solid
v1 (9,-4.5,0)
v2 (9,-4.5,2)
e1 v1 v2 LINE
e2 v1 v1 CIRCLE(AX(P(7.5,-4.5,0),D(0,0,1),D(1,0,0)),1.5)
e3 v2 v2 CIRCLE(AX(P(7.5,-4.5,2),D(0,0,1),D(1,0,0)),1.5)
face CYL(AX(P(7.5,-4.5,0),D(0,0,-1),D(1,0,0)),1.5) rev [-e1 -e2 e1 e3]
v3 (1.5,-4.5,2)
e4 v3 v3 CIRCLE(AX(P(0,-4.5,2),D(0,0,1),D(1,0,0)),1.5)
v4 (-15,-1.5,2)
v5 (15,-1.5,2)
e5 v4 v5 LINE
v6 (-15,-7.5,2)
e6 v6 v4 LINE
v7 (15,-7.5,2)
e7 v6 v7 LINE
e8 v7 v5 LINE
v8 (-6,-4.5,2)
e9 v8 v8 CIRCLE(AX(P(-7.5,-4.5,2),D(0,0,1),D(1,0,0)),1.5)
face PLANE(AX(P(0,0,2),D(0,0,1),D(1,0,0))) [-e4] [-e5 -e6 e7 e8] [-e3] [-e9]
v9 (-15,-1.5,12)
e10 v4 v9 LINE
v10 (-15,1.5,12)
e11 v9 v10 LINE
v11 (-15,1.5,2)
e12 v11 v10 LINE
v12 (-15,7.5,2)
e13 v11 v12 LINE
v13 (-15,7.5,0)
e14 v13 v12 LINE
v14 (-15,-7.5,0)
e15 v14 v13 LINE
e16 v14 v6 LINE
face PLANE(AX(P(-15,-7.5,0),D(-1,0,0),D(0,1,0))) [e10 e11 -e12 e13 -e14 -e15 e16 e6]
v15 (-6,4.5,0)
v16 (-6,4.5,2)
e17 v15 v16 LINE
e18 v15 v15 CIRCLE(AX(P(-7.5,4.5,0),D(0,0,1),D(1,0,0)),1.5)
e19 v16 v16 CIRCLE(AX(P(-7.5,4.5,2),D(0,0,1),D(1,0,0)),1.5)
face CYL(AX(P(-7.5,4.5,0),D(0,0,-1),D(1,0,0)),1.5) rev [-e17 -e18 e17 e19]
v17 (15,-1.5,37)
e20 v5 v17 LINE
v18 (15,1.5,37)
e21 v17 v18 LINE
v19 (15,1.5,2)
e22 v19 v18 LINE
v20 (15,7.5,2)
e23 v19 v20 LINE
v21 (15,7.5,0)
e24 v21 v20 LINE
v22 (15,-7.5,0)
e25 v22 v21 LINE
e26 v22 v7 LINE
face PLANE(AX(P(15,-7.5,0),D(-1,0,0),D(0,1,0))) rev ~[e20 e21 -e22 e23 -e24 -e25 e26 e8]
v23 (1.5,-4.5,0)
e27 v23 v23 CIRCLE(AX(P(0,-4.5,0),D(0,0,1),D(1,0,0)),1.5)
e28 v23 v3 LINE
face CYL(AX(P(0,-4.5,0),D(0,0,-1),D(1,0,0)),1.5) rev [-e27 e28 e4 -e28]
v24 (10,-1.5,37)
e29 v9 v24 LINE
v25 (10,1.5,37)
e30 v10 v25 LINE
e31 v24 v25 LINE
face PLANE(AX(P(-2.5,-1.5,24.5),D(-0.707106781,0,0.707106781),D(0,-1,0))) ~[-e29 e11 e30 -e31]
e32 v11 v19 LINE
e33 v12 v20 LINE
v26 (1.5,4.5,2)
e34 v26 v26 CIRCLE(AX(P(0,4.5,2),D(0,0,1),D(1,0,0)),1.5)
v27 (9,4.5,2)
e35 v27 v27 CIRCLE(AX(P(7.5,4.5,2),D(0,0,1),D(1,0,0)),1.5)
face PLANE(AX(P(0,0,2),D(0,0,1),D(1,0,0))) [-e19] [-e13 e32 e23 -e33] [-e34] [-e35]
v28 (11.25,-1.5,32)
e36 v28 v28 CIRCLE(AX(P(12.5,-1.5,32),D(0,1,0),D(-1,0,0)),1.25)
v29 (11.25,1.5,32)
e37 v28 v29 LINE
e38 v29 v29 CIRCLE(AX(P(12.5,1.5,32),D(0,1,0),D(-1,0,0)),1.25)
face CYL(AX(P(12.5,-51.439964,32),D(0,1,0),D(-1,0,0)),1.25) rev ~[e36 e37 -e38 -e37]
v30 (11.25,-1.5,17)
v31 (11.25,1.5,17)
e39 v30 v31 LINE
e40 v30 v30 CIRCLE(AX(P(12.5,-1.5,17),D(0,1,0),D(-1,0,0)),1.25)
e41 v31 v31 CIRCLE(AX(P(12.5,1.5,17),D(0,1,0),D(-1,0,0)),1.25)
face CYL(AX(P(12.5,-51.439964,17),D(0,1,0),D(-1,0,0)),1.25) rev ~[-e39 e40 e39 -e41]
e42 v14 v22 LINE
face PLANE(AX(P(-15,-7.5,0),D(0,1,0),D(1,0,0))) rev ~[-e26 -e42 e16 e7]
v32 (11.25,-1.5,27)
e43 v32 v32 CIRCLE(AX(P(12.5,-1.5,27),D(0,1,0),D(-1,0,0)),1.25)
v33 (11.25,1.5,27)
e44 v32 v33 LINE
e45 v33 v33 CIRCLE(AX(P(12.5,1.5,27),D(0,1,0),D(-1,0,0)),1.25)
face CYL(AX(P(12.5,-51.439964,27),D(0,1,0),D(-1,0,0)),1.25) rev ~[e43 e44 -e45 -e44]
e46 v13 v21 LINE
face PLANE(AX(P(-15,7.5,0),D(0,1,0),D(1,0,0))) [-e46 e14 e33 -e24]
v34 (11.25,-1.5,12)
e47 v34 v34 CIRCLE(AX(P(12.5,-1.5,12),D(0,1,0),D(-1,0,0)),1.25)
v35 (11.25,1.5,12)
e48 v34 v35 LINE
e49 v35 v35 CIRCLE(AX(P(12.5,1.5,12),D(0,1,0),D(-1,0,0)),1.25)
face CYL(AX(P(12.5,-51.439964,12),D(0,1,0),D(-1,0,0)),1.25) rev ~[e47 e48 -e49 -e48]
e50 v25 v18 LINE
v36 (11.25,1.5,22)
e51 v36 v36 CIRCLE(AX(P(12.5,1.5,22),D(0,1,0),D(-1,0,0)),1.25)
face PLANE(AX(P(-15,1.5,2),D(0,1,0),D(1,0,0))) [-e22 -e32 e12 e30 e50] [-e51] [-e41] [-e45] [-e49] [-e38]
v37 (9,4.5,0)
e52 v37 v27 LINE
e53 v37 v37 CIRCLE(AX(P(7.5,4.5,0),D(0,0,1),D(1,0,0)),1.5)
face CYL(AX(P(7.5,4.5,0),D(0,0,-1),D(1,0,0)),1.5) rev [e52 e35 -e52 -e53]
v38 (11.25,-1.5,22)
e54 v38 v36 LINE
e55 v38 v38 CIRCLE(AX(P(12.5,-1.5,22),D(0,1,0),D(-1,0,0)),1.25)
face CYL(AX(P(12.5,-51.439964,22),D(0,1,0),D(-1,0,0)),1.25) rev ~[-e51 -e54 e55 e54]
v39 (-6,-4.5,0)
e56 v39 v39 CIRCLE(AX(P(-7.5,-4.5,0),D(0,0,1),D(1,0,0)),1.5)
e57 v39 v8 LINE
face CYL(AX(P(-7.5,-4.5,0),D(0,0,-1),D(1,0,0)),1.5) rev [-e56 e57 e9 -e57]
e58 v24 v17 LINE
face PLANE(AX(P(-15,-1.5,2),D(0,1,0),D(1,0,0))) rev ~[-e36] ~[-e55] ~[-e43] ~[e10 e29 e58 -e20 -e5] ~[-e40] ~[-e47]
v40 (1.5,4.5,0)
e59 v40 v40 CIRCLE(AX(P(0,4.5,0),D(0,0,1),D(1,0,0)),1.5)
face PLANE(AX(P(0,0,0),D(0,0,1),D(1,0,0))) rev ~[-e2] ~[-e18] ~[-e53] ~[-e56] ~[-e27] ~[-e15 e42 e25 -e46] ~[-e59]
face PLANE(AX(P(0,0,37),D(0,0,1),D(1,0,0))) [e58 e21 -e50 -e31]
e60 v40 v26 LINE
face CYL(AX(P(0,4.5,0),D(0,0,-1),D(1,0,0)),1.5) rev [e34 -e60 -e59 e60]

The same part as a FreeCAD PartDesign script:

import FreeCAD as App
import Part
import Sketcher

V = App.Vector
Q = App.Units.Quantity


def edges_at(feature, points):
    """Names of the edges that pass closest to the given points."""
    edges = feature.Shape.Edges
    near = lambda p: min(range(len(edges)), key=lambda i: edges[i].distToShape(Part.Vertex(*p))[0])
    return sorted({f"Edge{near(p) + 1}" for p in points})


def add_polygon(sketch, points):
    """Adds a closed chain of lines whose ends are joined by coincident constraints."""
    first, n = sketch.GeometryCount, len(points)
    for a, b in zip(points, points[1:] + points[:1]):
        sketch.addGeometry(Part.LineSegment(App.Vector(*a, 0), App.Vector(*b, 0)), False)
    for i in range(n):
        sketch.addConstraint(Sketcher.Constraint("Coincident", first + i, 2, first + (i + 1) % n, 1))

doc = App.newDocument("Part")
body = doc.addObject("PartDesign::Body", "Body")

# Sketch on XY plane
sketch1 = body.newObject("Sketcher::SketchObject", "Sketch")
sketch1.AttachmentSupport = (doc.getObject("XY_Plane"), [""])
sketch1.MapMode = "FlatFace"
add_polygon(sketch1, [(-15, 7.5), (-15, -7.5), (15, -7.5), (15, 7.5)])  # lines 0-3
sketch1.addGeometry(Part.Circle(V(-7.5, -4.5, 0), V(0, 0, 1), 1.5), False)  # 4
sketch1.addGeometry(Part.Circle(V(0, -4.5, 0), V(0, 0, 1), 1.5), False)  # 5
sketch1.addGeometry(Part.Circle(V(7.5, -4.5, 0), V(0, 0, 1), 1.5), False)  # 6
sketch1.addGeometry(Part.Circle(V(-7.5, 4.5, 0), V(0, 0, 1), 1.5), False)  # 7
sketch1.addGeometry(Part.Circle(V(0, 4.5, 0), V(0, 0, 1), 1.5), False)  # 8
sketch1.addGeometry(Part.Circle(V(7.5, 4.5, 0), V(0, 0, 1), 1.5), False)  # 9
sketch1.addConstraint([
    Sketcher.Constraint("Vertical", 0),
    Sketcher.Constraint("Horizontal", 1),
    Sketcher.Constraint("Vertical", 2),
    Sketcher.Constraint("Horizontal", 3),
    Sketcher.Constraint("Equal", 4, 5),
    Sketcher.Constraint("Equal", 5, 6),
    Sketcher.Constraint("Equal", 6, 7),
    Sketcher.Constraint("Equal", 7, 8),
    Sketcher.Constraint("Equal", 8, 9),
    Sketcher.Constraint("Symmetric", 6, 3, 7, 3, -1, 1),
    Sketcher.Constraint("Symmetric", 5, 3, 8, 3, -1, 1),
    Sketcher.Constraint("Symmetric", 4, 3, 9, 3, -1, 1),
    Sketcher.Constraint("Symmetric", 0, 2, 2, 2, -1, 1),
    Sketcher.Constraint("Symmetric", 4, 3, 6, 3, -2),
    Sketcher.Constraint("PointOnObject", 5, 3, -2),
    Sketcher.Constraint("Horizontal", 4, 3, 5, 3),
    Sketcher.Constraint("Diameter", 4, Q("3 mm")),
    Sketcher.Constraint("DistanceX", 1, 1, 1, 2, Q("30 mm")),
    Sketcher.Constraint("DistanceY", 0, 2, 0, 1, Q("15 mm")),
    Sketcher.Constraint("DistanceX", 4, 3, 6, 3, Q("15 mm")),
    Sketcher.Constraint("DistanceY", 4, 3, 7, 3, Q("9 mm")),
])
pad1 = body.newObject("PartDesign::Pad", "Pad")
pad1.Profile = sketch1
pad1.Length = 2

# Sketch on XY plane
sketch2 = body.newObject("Sketcher::SketchObject", "Sketch001")
sketch2.AttachmentSupport = (doc.getObject("XY_Plane"), [""])
sketch2.MapMode = "FlatFace"
sketch2.AttachmentOffset = App.Placement(V(0, 0, 2), App.Rotation())
add_polygon(sketch2, [(-15, 1.5), (-15, -1.5), (15, -1.5), (15, 1.5)])  # lines 0-3
sketch2.addConstraint([
    Sketcher.Constraint("Vertical", 0),
    Sketcher.Constraint("Horizontal", 1),
    Sketcher.Constraint("Vertical", 2),
    Sketcher.Constraint("Horizontal", 3),
    Sketcher.Constraint("Symmetric", 0, 2, 2, 2, -1, 1),
    Sketcher.Constraint("DistanceX", 1, 1, 1, 2, Q("30 mm")),
    Sketcher.Constraint("DistanceY", 0, 2, 0, 1, Q("3 mm")),
])
pad2 = body.newObject("PartDesign::Pad", "Pad001")
pad2.Profile = sketch2
pad2.Length = 35
doc.recompute()

chamfer = body.newObject("PartDesign::Chamfer", "Chamfer")
chamfer.Base = (pad2, edges_at(pad2, [(-15, 0, 37)]))
chamfer.Size = 25

# Sketch on XZ plane
sketch3 = body.newObject("Sketcher::SketchObject", "Sketch002")
sketch3.AttachmentSupport = (doc.getObject("XZ_Plane"), [""])
sketch3.MapMode = "FlatFace"
sketch3.AttachmentOffset = App.Placement(V(0, 0, 1.5), App.Rotation())
sketch3.addGeometry([
    Part.Circle(V(12.5, 32, 0), V(0, 0, 1), 1.2),  # 0
    Part.Circle(V(12.5, 27, 0), V(0, 0, 1), 1.2),  # 1
    Part.Circle(V(12.5, 22, 0), V(0, 0, 1), 1.2),  # 2
    Part.Circle(V(12.5, 17, 0), V(0, 0, 1), 1.2),  # 3
    Part.Circle(V(12.5, 12, 0), V(0, 0, 1), 1.2),  # 4
], False)
sketch3.addConstraint([
    Sketcher.Constraint("Equal", 0, 1),
    Sketcher.Constraint("Equal", 1, 2),
    Sketcher.Constraint("Equal", 2, 3),
    Sketcher.Constraint("Equal", 3, 4),
    Sketcher.Constraint("Vertical", 0, 3, 1, 3),
    Sketcher.Constraint("Vertical", 1, 3, 2, 3),
    Sketcher.Constraint("Vertical", 2, 3, 3, 3),
    Sketcher.Constraint("Vertical", 3, 3, 4, 3),
    Sketcher.Constraint("Diameter", 0, Q("2.5 mm")),
    Sketcher.Constraint("DistanceY", -1, 1, 0, 3, Q("32 mm")),
    Sketcher.Constraint("DistanceY", -1, 1, 1, 3, Q("27 mm")),
    Sketcher.Constraint("DistanceY", -1, 1, 2, 3, Q("22 mm")),
    Sketcher.Constraint("DistanceY", -1, 1, 3, 3, Q("17 mm")),
    Sketcher.Constraint("DistanceY", -1, 1, 4, 3, Q("12 mm")),
    Sketcher.Constraint("DistanceX", -1, 1, 0, 3, Q("12.5 mm")),
])
doc.recompute()
hole = body.newObject("PartDesign::Hole", "Hole")
hole.Profile = sketch3
hole.ThreadType = "None"
hole.Diameter = 2.5
hole.DepthType = "ThroughAll"

doc.recompute()
